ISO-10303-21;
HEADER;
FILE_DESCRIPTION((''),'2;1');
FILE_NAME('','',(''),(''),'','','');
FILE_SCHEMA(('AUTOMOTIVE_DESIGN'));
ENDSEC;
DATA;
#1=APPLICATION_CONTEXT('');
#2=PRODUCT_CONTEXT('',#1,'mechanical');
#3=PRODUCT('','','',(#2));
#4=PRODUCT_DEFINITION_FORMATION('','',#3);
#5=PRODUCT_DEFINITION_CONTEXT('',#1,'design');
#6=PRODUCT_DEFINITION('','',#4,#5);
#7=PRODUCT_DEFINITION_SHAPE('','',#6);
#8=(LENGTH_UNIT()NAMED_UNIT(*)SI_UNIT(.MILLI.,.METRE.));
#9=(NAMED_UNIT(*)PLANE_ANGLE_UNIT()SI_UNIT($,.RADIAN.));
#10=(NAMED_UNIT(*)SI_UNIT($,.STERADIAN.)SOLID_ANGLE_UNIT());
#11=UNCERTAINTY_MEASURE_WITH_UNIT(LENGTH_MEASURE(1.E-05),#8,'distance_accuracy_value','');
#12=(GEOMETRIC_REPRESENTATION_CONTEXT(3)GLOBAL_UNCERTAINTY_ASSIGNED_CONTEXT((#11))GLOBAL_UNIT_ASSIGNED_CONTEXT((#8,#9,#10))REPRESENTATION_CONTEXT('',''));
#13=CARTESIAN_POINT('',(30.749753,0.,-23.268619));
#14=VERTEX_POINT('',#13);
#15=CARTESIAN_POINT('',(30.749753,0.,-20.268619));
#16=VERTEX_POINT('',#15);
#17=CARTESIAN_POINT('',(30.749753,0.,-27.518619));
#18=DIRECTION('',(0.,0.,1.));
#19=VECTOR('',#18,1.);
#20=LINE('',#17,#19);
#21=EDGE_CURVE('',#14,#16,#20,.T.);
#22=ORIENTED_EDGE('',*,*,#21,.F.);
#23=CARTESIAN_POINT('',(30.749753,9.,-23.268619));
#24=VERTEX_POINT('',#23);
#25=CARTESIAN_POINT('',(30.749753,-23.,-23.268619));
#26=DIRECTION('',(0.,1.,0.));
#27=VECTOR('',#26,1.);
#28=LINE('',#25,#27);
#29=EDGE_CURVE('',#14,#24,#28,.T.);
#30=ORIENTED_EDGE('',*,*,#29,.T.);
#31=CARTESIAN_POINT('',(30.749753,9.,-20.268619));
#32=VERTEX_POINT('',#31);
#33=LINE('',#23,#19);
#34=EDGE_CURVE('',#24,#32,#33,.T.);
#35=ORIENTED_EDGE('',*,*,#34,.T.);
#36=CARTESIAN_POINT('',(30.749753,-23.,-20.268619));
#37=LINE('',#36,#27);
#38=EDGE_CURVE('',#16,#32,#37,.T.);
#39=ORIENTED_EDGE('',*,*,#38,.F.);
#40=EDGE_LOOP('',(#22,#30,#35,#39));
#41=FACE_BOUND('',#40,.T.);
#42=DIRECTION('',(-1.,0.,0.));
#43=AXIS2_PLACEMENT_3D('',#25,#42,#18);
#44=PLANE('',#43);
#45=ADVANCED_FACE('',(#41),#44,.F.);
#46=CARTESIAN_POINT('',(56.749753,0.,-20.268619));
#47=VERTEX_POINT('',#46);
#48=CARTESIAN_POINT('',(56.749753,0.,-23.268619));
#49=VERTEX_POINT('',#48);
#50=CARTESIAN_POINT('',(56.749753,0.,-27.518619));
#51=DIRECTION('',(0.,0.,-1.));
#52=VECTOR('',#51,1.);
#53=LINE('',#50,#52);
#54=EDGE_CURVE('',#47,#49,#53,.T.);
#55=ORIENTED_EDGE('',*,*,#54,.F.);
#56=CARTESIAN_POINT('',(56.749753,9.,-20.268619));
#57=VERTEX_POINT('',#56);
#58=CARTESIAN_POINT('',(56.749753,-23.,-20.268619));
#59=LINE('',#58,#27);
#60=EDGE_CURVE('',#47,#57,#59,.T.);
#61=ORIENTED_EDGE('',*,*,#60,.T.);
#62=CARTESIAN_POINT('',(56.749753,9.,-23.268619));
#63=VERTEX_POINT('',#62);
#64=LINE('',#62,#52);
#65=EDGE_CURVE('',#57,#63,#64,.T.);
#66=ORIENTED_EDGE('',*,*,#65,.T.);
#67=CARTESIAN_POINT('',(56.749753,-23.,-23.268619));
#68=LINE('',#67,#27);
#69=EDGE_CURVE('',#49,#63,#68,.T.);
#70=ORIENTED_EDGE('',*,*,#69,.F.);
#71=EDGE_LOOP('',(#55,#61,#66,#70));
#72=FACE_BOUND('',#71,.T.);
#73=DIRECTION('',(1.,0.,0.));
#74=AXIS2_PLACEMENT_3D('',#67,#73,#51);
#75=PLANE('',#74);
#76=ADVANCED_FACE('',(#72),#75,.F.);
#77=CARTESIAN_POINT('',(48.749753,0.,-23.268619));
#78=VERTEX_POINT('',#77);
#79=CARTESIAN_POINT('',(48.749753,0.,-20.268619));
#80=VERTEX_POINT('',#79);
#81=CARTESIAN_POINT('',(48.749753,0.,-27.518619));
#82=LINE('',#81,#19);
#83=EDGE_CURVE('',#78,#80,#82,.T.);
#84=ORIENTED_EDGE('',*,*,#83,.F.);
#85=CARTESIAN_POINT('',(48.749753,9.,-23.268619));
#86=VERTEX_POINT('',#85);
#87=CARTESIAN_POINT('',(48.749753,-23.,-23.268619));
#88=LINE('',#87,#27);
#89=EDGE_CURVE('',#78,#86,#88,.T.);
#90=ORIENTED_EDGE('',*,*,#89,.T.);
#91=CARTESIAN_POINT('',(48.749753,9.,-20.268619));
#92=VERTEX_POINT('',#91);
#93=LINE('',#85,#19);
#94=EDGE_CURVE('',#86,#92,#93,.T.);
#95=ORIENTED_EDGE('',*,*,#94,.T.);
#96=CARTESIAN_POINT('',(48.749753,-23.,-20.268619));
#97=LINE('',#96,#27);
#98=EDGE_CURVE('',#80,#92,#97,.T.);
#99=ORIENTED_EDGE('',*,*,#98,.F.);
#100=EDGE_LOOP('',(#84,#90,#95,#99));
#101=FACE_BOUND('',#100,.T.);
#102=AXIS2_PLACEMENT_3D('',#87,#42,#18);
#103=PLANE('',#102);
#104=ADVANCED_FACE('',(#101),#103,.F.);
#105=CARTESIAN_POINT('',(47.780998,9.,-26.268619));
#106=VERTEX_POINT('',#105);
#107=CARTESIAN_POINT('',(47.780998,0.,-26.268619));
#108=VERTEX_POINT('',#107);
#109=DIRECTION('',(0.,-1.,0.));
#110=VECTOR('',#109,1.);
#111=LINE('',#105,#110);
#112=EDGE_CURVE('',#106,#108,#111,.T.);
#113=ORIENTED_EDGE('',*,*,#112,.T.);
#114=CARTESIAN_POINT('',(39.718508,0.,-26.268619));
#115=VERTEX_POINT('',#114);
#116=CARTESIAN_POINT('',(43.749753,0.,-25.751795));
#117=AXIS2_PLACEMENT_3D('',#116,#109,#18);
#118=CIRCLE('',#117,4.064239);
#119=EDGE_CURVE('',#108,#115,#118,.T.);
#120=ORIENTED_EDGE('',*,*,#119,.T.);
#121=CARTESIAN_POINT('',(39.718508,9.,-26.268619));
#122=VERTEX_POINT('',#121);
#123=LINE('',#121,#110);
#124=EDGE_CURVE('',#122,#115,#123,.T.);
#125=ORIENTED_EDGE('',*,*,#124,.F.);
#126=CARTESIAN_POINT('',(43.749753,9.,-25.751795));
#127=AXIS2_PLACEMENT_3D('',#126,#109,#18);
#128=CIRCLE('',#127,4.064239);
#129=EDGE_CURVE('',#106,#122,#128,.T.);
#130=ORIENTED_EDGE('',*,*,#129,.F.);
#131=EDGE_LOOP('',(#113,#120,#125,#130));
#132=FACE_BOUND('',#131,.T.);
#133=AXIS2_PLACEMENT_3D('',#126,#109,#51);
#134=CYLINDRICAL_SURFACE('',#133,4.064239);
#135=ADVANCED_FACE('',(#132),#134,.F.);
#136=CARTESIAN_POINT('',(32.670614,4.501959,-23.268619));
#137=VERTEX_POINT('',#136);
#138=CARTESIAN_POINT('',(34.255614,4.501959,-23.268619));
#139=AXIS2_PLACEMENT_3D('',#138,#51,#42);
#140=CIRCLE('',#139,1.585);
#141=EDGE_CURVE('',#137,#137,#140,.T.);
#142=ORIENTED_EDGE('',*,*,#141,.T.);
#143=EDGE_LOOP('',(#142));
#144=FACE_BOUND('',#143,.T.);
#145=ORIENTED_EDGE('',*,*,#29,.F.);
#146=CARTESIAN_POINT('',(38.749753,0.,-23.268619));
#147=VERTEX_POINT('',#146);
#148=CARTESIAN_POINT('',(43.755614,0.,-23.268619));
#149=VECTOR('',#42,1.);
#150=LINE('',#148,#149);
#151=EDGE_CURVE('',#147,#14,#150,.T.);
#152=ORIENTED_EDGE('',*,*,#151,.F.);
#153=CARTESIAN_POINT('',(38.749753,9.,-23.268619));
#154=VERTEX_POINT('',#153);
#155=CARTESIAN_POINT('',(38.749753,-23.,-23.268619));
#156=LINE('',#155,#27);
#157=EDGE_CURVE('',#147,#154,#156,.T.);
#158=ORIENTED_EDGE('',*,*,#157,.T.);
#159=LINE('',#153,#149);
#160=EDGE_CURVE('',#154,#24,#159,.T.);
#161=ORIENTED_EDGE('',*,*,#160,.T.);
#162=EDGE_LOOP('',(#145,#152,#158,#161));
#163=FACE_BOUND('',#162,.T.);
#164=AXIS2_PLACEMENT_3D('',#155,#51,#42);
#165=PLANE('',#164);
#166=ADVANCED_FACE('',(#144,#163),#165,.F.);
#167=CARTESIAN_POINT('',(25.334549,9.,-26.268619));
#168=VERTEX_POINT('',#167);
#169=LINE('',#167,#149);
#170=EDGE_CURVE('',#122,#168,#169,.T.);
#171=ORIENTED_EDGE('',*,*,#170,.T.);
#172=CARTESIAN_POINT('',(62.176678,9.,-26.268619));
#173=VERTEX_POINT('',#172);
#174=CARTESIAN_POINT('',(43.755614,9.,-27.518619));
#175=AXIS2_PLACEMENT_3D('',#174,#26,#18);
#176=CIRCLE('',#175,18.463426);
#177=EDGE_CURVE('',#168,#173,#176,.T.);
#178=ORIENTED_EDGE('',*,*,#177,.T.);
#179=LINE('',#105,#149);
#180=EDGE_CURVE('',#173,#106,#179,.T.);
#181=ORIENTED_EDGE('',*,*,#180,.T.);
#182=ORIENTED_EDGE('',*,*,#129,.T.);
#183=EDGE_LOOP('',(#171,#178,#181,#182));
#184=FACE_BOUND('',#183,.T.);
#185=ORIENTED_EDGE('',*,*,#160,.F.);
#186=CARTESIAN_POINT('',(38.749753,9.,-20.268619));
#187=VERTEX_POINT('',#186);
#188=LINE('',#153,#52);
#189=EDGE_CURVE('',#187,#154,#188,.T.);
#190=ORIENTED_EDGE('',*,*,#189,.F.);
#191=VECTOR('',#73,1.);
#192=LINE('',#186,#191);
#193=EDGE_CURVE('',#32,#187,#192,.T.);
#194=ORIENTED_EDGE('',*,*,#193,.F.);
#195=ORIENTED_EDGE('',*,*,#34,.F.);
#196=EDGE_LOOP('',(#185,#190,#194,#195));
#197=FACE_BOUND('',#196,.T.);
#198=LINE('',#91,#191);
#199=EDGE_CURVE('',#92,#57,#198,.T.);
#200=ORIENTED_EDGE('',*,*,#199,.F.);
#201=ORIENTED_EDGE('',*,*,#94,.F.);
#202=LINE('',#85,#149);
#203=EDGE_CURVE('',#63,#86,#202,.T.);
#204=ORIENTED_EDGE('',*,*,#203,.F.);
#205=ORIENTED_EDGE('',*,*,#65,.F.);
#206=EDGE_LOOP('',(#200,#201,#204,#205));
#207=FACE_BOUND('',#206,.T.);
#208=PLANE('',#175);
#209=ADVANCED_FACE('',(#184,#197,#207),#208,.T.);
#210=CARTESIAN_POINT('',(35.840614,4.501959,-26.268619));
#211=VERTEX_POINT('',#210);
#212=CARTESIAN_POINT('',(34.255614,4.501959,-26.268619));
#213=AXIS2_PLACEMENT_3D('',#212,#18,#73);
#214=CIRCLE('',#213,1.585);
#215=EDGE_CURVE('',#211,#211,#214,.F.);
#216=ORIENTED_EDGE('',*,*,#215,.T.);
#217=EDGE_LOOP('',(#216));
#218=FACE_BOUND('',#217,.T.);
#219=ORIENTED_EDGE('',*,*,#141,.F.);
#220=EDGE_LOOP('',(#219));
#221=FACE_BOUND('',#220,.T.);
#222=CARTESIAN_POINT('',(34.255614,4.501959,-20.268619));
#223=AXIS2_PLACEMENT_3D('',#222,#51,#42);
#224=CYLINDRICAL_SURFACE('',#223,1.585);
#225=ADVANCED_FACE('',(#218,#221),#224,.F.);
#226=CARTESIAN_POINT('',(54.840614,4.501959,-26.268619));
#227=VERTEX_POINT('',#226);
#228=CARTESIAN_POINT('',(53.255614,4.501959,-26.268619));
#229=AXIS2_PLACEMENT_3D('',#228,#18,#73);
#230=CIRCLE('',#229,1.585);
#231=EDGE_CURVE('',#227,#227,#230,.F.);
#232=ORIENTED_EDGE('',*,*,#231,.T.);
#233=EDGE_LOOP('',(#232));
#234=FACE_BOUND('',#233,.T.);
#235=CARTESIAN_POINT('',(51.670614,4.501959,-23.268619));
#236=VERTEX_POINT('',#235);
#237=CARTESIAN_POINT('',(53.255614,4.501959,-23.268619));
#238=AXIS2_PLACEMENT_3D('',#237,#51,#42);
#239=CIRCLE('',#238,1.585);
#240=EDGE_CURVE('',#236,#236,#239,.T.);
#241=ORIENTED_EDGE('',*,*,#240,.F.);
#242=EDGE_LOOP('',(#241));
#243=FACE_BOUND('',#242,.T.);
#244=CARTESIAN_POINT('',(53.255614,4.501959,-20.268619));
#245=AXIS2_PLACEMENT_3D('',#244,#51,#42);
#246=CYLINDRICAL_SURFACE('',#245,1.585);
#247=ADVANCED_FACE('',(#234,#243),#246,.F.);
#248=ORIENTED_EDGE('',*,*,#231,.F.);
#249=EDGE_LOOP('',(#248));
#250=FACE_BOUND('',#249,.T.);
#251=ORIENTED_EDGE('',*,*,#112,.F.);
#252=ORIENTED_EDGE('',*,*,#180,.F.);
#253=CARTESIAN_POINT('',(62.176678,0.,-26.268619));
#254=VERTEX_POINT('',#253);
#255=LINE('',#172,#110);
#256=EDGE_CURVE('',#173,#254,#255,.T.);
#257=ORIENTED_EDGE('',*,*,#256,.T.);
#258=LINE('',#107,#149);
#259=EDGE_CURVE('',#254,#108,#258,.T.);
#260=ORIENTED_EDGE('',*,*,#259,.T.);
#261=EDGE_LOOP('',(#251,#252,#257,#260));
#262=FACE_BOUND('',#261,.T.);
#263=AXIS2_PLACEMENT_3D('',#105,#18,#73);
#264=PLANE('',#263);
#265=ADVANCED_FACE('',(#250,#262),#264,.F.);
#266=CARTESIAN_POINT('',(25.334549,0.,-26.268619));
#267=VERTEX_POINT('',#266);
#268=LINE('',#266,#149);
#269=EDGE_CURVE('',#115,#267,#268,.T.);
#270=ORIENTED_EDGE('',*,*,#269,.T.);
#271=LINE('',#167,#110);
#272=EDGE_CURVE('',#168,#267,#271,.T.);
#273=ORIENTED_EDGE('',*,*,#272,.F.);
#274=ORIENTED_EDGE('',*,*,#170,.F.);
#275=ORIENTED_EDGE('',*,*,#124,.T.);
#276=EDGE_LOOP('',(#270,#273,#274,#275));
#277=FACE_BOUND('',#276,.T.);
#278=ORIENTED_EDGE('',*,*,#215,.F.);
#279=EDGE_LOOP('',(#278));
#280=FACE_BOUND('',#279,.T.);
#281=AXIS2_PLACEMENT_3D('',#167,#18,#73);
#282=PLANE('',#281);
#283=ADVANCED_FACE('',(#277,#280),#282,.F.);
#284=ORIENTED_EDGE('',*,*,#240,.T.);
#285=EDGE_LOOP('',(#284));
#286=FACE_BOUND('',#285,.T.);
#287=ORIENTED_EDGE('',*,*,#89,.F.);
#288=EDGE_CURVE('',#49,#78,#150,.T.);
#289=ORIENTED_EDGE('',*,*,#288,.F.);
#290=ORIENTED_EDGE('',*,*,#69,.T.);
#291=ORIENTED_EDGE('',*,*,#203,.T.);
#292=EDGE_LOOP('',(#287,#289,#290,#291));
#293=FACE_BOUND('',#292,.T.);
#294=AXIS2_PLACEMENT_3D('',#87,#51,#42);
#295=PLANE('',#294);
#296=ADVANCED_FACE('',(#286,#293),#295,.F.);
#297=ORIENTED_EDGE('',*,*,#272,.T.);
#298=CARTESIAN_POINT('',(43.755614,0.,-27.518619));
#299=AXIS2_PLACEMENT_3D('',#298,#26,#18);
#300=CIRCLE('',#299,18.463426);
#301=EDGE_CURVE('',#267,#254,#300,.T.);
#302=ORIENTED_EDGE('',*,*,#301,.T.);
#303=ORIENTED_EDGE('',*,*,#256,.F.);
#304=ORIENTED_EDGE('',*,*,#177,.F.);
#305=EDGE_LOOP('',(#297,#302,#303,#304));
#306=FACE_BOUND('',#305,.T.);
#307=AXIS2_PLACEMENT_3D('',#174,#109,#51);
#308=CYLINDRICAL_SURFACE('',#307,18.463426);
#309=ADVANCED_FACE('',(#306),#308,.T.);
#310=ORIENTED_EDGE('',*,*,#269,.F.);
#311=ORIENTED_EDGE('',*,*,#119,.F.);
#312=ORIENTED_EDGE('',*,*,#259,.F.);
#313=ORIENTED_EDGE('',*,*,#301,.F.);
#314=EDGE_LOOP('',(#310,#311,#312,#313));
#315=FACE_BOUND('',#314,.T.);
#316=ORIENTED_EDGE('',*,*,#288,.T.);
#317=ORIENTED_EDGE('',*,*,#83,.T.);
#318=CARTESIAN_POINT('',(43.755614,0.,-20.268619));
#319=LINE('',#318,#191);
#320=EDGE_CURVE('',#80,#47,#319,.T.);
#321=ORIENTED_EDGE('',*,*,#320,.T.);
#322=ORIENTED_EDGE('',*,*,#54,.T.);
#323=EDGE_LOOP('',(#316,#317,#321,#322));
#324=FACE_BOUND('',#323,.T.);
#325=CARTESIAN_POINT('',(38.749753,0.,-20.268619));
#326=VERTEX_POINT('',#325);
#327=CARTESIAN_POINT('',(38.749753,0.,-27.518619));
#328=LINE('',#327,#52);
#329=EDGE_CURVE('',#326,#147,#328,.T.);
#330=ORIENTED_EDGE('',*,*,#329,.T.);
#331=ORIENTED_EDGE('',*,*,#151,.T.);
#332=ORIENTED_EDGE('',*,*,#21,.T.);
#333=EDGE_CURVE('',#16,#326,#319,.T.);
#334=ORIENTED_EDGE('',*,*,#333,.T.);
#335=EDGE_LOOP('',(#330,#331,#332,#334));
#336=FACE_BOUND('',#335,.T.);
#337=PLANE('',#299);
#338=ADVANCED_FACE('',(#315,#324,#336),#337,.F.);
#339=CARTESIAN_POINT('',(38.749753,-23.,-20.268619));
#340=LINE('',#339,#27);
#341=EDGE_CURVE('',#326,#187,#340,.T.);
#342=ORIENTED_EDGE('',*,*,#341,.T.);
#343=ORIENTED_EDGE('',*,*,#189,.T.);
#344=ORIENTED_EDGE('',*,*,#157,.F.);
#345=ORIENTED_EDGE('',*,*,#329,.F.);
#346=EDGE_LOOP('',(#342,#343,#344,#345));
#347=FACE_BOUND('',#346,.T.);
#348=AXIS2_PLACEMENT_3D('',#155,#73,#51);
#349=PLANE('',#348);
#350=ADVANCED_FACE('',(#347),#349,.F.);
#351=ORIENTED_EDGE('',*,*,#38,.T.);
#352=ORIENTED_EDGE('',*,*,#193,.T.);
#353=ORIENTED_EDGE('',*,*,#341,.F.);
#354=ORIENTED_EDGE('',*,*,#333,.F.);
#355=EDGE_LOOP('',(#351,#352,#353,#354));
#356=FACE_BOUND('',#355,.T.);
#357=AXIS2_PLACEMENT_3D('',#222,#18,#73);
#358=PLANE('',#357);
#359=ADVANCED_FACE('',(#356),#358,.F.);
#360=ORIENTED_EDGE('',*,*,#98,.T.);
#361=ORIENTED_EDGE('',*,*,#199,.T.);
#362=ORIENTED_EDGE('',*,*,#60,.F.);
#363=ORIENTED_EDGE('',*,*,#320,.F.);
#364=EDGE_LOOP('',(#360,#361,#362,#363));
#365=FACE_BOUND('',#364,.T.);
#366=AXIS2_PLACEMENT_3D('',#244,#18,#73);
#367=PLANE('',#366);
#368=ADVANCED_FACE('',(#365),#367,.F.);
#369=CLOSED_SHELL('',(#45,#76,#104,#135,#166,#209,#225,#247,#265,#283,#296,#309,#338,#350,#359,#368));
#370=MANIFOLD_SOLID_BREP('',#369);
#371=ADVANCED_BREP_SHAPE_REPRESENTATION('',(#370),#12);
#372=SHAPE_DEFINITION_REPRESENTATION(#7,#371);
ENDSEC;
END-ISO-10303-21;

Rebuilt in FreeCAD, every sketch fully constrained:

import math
import FreeCAD as App
import Part
import Sketcher

doc = App.newDocument("Part")
body = doc.addObject("PartDesign::Body", "Body")

sketch1 = body.newObject("Sketcher::SketchObject", "Sketch")
sketch1.AttachmentSupport = (doc.getObject("XZ_Plane"), [""])
sketch1.MapMode = "FlatFace"
sketch1.addGeometry([
    Part.LineSegment(App.Vector(39.7, -26.3, 0), App.Vector(25.3, -26.3, 0)),
    Part.ArcOfCircle(Part.Circle(App.Vector(43.8, -27.5, 0), App.Vector(0, 0, 1), 18.5), math.radians(4), math.radians(176)),
    Part.LineSegment(App.Vector(62.2, -26.3, 0), App.Vector(47.8, -26.3, 0)),
    Part.ArcOfCircle(Part.Circle(App.Vector(43.7, -25.8, 0), App.Vector(0, 0, 1), 4.1), math.radians(-7), math.radians(187)),
], False)
sketch1.addConstraint([
    Sketcher.Constraint("Coincident", 0, 2, 1, 2),
    Sketcher.Constraint("Coincident", 1, 1, 2, 1),
    Sketcher.Constraint("Coincident", 2, 2, 3, 1),
    Sketcher.Constraint("Coincident", 3, 2, 0, 1),
    Sketcher.Constraint("Horizontal", 0),
    Sketcher.Constraint("Horizontal", 2),
    Sketcher.Constraint("Horizontal", 0, 2, 1, 1),
    Sketcher.Constraint("Radius", 3, 4.064239),
    Sketcher.Constraint("DistanceY", 1, 3, 0, 2, 1.25),
    Sketcher.Constraint("Radius", 1, 18.463426),
    Sketcher.Constraint("DistanceX", 0, 2, 0, 1, 14.383958),
    Sketcher.Constraint("DistanceX", 2, 2, 2, 1, 14.395681),
    Sketcher.Constraint("DistanceY", 1, 3, -1, 1, 27.518619),
    Sketcher.Constraint("DistanceX", -1, 1, 0, 2, 25.334549),
])
pad1 = body.newObject("PartDesign::Pad", "Pad")
pad1.Profile = sketch1
pad1.Length = 9
pad1.Reversed = True

sketch2 = body.newObject("Sketcher::SketchObject", "Sketch001")
sketch2.AttachmentSupport = (doc.getObject("XY_Plane"), [""])
sketch2.MapMode = "FlatFace"
sketch2.AttachmentOffset = App.Placement(App.Vector(0, 0, -52.268619), App.Rotation())
sketch2.addGeometry([
    Part.Circle(App.Vector(53.3, 4.5, 0), App.Vector(0, 0, 1), 1.6),
    Part.Circle(App.Vector(34.3, 4.5, 0), App.Vector(0, 0, 1), 1.6),
], False)
sketch2.addConstraint([
    Sketcher.Constraint("Equal", 0, 1),
    Sketcher.Constraint("Horizontal", 0, 3, 1, 3),
    Sketcher.Constraint("Diameter", 0, 3.17),
    Sketcher.Constraint("DistanceX", 1, 3, 0, 3, 19.0),
    Sketcher.Constraint("DistanceY", -1, 1, 0, 3, 4.501959),
    Sketcher.Constraint("DistanceX", -1, 1, 0, 3, 53.255614),
])
pocket1 = body.newObject("PartDesign::Pocket", "Pocket")
pocket1.Profile = sketch2
pocket1.Length = 32
pocket1.Reversed = True

sketch3 = body.newObject("Sketcher::SketchObject", "Sketch002")
sketch3.AttachmentSupport = (doc.getObject("XZ_Plane"), [""])
sketch3.MapMode = "FlatFace"
sketch3.AttachmentOffset = App.Placement(App.Vector(0, 0, -9), App.Rotation())
sketch3.addGeometry([
    Part.LineSegment(App.Vector(48.7, -23.3, 0), App.Vector(48.7, -20.3, 0)),
    Part.LineSegment(App.Vector(48.7, -20.3, 0), App.Vector(56.7, -20.3, 0)),
    Part.LineSegment(App.Vector(56.7, -20.3, 0), App.Vector(56.7, -23.3, 0)),
    Part.LineSegment(App.Vector(56.7, -23.3, 0), App.Vector(48.7, -23.3, 0)),
    Part.LineSegment(App.Vector(30.7, -23.3, 0), App.Vector(30.7, -20.3, 0)),
    Part.LineSegment(App.Vector(30.7, -20.3, 0), App.Vector(38.7, -20.3, 0)),
    Part.LineSegment(App.Vector(38.7, -20.3, 0), App.Vector(38.7, -23.3, 0)),
    Part.LineSegment(App.Vector(38.7, -23.3, 0), App.Vector(30.7, -23.3, 0)),
], False)
sketch3.addConstraint([
    Sketcher.Constraint("Coincident", 0, 2, 1, 1),
    Sketcher.Constraint("Coincident", 1, 2, 2, 1),
    Sketcher.Constraint("Coincident", 2, 2, 3, 1),
    Sketcher.Constraint("Coincident", 3, 2, 0, 1),
    Sketcher.Constraint("Coincident", 4, 2, 5, 1),
    Sketcher.Constraint("Coincident", 5, 2, 6, 1),
    Sketcher.Constraint("Coincident", 6, 2, 7, 1),
    Sketcher.Constraint("Coincident", 7, 2, 4, 1),
    Sketcher.Constraint("Vertical", 0),
    Sketcher.Constraint("Horizontal", 1),
    Sketcher.Constraint("Vertical", 2),
    Sketcher.Constraint("Horizontal", 3),
    Sketcher.Constraint("Vertical", 4),
    Sketcher.Constraint("Horizontal", 5),
    Sketcher.Constraint("Vertical", 6),
    Sketcher.Constraint("Horizontal", 7),
    Sketcher.Constraint("Horizontal", 1, 2, 4, 2),
    Sketcher.Constraint("Horizontal", 3, 2, 6, 2),
    Sketcher.Constraint("Equal", 3, 5),
    Sketcher.Constraint("DistanceX", 1, 1, 1, 2, 8.0),
    Sketcher.Constraint("DistanceY", 0, 1, 0, 2, 3.0),
    Sketcher.Constraint("DistanceX", 4, 2, 0, 2, 18.0),
    Sketcher.Constraint("DistanceY", 0, 2, -1, 1, 20.268619),
    Sketcher.Constraint("DistanceX", -1, 1, 0, 2, 48.749753),
])
pocket2 = body.newObject("PartDesign::Pocket", "Pocket001")
pocket2.Profile = sketch3
pocket2.Length = 32
pocket2.Reversed = True

doc.recompute()
